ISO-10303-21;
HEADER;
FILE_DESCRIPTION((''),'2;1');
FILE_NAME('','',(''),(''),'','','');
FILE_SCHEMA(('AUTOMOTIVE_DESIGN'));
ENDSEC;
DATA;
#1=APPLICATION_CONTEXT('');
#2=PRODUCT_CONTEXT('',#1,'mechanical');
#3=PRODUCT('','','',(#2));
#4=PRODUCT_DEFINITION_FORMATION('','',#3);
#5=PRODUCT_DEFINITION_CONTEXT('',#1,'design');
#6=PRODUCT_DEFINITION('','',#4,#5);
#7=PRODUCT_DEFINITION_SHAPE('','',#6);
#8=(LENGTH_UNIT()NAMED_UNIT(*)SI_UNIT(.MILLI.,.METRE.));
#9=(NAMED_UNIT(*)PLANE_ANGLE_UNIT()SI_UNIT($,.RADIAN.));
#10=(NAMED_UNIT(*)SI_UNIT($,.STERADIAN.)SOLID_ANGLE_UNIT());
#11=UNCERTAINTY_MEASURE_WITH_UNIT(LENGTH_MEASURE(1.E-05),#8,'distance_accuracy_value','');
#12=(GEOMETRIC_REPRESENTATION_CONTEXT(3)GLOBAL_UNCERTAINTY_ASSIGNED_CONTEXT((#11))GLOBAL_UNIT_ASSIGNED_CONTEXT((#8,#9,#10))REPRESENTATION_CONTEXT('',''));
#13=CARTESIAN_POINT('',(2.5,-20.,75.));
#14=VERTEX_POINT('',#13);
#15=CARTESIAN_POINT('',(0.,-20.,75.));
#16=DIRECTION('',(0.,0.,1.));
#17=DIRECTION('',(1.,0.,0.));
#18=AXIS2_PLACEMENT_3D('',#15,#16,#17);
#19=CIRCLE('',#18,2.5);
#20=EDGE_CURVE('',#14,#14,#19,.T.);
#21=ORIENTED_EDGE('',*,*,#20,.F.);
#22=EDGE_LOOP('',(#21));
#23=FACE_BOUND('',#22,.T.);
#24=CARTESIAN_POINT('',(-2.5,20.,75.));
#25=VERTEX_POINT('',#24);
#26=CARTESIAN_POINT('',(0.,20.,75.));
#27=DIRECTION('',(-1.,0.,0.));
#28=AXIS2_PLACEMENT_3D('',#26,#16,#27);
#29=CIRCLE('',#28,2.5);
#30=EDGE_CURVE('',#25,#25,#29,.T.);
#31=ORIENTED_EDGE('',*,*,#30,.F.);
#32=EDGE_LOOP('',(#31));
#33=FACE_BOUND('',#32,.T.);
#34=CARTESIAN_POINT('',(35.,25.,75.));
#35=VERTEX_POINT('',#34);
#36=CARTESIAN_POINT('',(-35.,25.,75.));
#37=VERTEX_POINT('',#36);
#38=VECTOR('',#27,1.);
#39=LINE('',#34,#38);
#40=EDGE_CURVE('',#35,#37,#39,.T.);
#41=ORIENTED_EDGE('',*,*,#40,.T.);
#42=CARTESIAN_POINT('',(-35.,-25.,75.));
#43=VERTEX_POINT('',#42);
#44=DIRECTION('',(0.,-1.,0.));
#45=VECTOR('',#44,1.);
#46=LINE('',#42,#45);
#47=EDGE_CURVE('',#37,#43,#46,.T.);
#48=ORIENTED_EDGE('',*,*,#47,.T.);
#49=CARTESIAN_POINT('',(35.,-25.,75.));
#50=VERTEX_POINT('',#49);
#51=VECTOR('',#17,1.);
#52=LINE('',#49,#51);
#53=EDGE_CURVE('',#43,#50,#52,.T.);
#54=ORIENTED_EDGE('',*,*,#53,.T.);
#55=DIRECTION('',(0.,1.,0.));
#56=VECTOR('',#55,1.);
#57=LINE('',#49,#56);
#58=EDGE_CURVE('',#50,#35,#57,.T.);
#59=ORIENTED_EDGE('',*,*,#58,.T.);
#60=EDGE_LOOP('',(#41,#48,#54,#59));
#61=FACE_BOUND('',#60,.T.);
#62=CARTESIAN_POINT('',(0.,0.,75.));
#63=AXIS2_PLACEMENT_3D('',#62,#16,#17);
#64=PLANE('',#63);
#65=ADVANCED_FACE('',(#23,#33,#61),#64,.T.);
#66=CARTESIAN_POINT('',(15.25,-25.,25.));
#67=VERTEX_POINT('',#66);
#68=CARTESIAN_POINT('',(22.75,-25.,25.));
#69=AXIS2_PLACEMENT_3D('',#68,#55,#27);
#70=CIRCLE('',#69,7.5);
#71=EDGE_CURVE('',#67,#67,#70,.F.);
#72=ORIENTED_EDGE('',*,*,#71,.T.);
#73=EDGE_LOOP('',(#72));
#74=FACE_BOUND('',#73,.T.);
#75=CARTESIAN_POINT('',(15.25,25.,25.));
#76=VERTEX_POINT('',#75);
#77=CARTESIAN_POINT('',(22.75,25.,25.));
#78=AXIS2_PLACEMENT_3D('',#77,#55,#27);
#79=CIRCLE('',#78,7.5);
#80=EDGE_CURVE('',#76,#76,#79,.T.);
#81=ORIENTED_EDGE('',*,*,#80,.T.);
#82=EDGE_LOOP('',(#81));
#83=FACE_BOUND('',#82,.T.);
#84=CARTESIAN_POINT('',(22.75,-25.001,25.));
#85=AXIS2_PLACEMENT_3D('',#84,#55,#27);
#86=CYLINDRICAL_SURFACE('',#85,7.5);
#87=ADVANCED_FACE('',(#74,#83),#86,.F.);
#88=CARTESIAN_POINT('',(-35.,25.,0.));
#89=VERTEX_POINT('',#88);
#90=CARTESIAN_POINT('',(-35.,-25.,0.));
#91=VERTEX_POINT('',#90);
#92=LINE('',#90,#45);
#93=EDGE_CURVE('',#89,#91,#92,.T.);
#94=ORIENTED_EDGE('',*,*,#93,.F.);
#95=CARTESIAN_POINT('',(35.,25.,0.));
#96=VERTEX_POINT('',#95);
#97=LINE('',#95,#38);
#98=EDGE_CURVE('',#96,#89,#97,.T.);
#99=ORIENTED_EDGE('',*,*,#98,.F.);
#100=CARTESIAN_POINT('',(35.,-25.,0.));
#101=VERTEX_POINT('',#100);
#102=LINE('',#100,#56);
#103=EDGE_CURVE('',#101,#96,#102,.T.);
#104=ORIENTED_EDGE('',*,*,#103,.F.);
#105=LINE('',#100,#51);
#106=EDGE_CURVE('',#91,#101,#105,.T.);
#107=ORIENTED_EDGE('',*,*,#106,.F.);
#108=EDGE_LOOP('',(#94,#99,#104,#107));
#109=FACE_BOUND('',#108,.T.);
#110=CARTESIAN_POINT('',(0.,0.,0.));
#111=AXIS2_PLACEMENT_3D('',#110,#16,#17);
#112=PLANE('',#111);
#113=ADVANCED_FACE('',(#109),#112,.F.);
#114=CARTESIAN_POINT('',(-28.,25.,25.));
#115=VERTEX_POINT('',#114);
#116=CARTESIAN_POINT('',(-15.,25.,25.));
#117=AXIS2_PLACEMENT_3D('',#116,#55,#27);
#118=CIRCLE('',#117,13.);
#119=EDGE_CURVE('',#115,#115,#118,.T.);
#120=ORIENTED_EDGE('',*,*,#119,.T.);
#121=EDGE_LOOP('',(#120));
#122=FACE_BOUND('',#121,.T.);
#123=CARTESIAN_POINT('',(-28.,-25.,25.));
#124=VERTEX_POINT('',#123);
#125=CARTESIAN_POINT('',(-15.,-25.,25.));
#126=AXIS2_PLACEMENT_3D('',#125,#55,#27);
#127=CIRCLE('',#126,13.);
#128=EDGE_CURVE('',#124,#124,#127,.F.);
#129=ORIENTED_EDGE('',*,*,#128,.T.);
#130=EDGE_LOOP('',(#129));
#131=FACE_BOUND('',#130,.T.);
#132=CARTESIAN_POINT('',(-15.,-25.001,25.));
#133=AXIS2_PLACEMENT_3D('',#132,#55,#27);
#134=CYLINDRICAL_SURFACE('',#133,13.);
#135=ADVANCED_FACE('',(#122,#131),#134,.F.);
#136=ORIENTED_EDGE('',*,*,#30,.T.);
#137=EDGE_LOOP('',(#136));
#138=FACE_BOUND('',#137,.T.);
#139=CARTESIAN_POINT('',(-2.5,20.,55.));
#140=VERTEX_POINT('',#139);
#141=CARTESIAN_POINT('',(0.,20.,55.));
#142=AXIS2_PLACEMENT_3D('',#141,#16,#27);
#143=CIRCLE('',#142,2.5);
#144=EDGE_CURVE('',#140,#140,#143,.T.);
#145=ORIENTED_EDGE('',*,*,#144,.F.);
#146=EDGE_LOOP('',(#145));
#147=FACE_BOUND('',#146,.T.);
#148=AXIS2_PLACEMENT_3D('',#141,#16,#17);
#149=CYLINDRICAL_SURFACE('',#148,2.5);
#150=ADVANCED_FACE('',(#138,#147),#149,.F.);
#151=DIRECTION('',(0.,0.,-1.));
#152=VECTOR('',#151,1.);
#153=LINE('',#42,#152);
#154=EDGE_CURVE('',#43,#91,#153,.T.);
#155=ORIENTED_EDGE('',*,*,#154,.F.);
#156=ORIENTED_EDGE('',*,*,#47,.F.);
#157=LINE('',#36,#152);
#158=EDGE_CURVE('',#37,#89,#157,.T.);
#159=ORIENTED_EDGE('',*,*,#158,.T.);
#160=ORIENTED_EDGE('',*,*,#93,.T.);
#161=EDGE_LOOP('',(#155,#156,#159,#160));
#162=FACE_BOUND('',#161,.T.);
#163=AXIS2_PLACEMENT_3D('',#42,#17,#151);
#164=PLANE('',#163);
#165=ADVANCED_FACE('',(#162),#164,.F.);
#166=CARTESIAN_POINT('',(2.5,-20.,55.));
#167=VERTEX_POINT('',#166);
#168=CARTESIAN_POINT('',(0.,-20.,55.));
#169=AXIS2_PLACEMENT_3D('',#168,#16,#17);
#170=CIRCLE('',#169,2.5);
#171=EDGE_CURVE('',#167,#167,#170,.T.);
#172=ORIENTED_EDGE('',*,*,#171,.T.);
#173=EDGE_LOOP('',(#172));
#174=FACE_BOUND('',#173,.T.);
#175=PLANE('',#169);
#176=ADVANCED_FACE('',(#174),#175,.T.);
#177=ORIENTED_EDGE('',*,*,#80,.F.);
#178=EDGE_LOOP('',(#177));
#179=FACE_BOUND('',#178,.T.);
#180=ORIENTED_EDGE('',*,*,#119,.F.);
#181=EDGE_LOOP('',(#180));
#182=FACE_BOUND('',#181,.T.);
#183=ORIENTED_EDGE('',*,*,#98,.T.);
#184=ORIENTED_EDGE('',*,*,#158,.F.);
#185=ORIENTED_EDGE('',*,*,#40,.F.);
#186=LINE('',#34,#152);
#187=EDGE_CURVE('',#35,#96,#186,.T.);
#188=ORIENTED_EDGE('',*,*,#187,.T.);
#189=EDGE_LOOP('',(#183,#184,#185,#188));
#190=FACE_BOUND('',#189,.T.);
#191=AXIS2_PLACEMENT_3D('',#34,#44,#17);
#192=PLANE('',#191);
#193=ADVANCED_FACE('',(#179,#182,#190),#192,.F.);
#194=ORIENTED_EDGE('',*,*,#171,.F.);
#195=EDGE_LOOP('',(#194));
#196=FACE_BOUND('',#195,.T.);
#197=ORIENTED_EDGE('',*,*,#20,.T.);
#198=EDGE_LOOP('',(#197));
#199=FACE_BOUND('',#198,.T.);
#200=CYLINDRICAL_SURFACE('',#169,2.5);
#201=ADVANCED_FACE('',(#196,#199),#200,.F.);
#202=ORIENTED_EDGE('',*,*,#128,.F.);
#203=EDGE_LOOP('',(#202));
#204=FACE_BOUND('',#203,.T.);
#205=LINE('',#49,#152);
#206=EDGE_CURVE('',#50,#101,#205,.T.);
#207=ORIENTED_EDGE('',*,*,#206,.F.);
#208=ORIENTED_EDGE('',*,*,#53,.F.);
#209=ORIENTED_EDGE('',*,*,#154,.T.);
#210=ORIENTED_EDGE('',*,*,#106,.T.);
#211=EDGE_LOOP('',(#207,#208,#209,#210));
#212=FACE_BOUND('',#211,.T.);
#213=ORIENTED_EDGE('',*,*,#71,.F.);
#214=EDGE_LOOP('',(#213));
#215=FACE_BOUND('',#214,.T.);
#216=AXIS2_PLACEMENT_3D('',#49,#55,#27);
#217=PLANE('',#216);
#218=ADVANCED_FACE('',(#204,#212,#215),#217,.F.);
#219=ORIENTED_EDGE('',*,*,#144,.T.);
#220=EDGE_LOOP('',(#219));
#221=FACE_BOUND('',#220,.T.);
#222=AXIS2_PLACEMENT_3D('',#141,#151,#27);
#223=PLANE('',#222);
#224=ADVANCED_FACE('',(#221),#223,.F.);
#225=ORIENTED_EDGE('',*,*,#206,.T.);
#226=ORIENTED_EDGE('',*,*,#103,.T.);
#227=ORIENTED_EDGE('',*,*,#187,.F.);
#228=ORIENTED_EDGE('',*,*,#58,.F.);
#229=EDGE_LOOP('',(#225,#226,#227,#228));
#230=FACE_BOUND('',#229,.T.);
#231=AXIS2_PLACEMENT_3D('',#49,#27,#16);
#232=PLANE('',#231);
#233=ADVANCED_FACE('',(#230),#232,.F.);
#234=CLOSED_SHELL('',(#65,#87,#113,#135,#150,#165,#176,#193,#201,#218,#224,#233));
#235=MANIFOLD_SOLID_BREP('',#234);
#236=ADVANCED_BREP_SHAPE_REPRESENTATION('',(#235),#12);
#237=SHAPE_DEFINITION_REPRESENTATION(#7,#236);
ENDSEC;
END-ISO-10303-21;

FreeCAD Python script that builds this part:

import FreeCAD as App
import Part
import Sketcher

V = App.Vector
Q = App.Units.Quantity

doc = App.newDocument("Part")
params = doc.addObject("Spreadsheet::Sheet", "Params")
for row, (alias, value) in enumerate([
    ("sketch1_width", "70 mm"),
    ("sketch1_height", "50 mm"),
    ("pad1_length", "75 mm"),
    ("sketch2_diameter", "15 mm"),
    ("sketch3_diameter", "26 mm"),
    ("sketch4_diameter", "5 mm"),
    ("pocket3_length", "20 mm"),
], start=1):
    params.set(f"A{row}", alias)
    params.set(f"B{row}", "=" + value)
    params.setAlias(f"B{row}", alias)

body = doc.addObject("PartDesign::Body", "Body")

sketch1 = body.newObject("Sketcher::SketchObject", "Sketch")
sketch1.AttachmentSupport = (doc.getObject("XY_Plane"), [""])
sketch1.MapMode = "FlatFace"
sketch1.addGeometry([
    Part.LineSegment(V(-35, 25, 0), V(-35, -25, 0)),
    Part.LineSegment(V(-35, -25, 0), V(35, -25, 0)),
    Part.LineSegment(V(35, -25, 0), V(35, 25, 0)),
    Part.LineSegment(V(35, 25, 0), V(-35, 25, 0)),
], False)
sketch1.addConstraint([
    Sketcher.Constraint("Coincident", 0, 2, 1, 1),
    Sketcher.Constraint("Coincident", 1, 2, 2, 1),
    Sketcher.Constraint("Coincident", 2, 2, 3, 1),
    Sketcher.Constraint("Coincident", 3, 2, 0, 1),
    Sketcher.Constraint("Vertical", 0),
    Sketcher.Constraint("Horizontal", 1),
    Sketcher.Constraint("Vertical", 2),
    Sketcher.Constraint("Horizontal", 3),
    Sketcher.Constraint("Symmetric", 0, 2, 2, 2, -1, 1),
    Sketcher.Constraint("DistanceX", 1, 1, 1, 2, Q("70 mm")),
    Sketcher.Constraint("DistanceY", 0, 2, 0, 1, Q("50 mm")),
])
sketch1.setExpression("Constraints[9]", "Params.sketch1_width")
sketch1.setExpression("Constraints[10]", "Params.sketch1_height")
pad1 = body.newObject("PartDesign::Pad", "Pad")
pad1.Profile = sketch1
pad1.setExpression("Length", "Params.pad1_length")

sketch2 = body.newObject("Sketcher::SketchObject", "Sketch001")
sketch2.AttachmentSupport = (doc.getObject("XZ_Plane"), [""])
sketch2.MapMode = "FlatFace"
sketch2.AttachmentOffset = App.Placement(V(0, 0, -25), App.Rotation())
sketch2.addGeometry(Part.Circle(V(23, 25, 0), V(0, 0, 1), 8), False)
sketch2.addConstraint([
    Sketcher.Constraint("Diameter", 0, Q("15 mm")),
    Sketcher.Constraint("DistanceY", -1, 1, 0, 3, Q("25 mm")),
    Sketcher.Constraint("DistanceX", -1, 1, 0, 3, Q("22.75 mm")),
])
sketch2.setExpression("Constraints[0]", "Params.sketch2_diameter")
pocket1 = body.newObject("PartDesign::Pocket", "Pocket")
pocket1.Profile = sketch2
pocket1.Type = "UpToFirst"
pocket1.Reversed = True

sketch3 = body.newObject("Sketcher::SketchObject", "Sketch002")
sketch3.AttachmentSupport = (doc.getObject("XZ_Plane"), [""])
sketch3.MapMode = "FlatFace"
sketch3.AttachmentOffset = App.Placement(V(0, 0, -25), App.Rotation())
sketch3.addGeometry(Part.Circle(V(-15, 25, 0), V(0, 0, 1), 13), False)
sketch3.addConstraint([
    Sketcher.Constraint("Diameter", 0, Q("26 mm")),
    Sketcher.Constraint("DistanceX", 0, 3, -1, 1, Q("15 mm")),
    Sketcher.Constraint("DistanceY", -1, 1, 0, 3, Q("25 mm")),
])
sketch3.setExpression("Constraints[0]", "Params.sketch3_diameter")
pocket2 = body.newObject("PartDesign::Pocket", "Pocket001")
pocket2.Profile = sketch3
pocket2.Type = "UpToFirst"
pocket2.Reversed = True

sketch4 = body.newObject("Sketcher::SketchObject", "Sketch003")
sketch4.AttachmentSupport = (doc.getObject("XY_Plane"), [""])
sketch4.MapMode = "FlatFace"
sketch4.AttachmentOffset = App.Placement(V(0, 0, 75), App.Rotation())
sketch4.addGeometry([
    Part.Circle(V(0, -20, 0), V(0, 0, 1), 2.5),
    Part.Circle(V(0, 20, 0), V(0, 0, 1), 2.5),
], False)
sketch4.addConstraint([
    Sketcher.Constraint("Equal", 0, 1),
    Sketcher.Constraint("Symmetric", 0, 3, 1, 3, -1, 1),
    Sketcher.Constraint("PointOnObject", 0, 3, -2),
    Sketcher.Constraint("Diameter", 0, Q("5 mm")),
    Sketcher.Constraint("DistanceY", 0, 3, -1, 1, Q("20 mm")),
])
sketch4.setExpression("Constraints[3]", "Params.sketch4_diameter")
pocket3 = body.newObject("PartDesign::Pocket", "Pocket002")
pocket3.Profile = sketch4
pocket3.setExpression("Length", "Params.pocket3_length")

doc.recompute()
